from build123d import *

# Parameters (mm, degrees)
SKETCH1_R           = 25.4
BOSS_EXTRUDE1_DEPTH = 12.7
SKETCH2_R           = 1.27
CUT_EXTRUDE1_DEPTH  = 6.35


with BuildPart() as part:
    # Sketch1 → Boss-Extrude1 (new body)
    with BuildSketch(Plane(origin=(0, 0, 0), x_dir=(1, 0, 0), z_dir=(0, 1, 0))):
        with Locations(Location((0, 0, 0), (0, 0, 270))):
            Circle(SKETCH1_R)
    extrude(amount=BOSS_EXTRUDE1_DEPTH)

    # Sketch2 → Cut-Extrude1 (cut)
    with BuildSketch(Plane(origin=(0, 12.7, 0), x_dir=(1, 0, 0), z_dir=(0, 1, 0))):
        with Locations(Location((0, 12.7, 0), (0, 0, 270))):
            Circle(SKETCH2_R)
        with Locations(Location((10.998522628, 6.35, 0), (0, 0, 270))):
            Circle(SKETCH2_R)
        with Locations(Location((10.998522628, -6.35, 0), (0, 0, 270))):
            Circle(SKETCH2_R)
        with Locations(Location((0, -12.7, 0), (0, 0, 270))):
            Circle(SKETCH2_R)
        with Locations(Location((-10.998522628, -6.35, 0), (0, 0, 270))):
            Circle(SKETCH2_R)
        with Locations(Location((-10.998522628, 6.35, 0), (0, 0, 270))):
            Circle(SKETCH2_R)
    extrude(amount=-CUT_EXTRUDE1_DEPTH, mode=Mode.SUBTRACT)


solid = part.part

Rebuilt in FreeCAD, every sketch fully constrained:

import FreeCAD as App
import Part
import Sketcher
Q = App.Units.Quantity

doc = App.newDocument("Part")
params = doc.addObject("Spreadsheet::Sheet", "Params")
for row, (alias, value) in enumerate([
    ("sketch1_diameter", "2 in"),
    ("pad1_length", "0.5 in"),
    ("sketch2_diameter", "0.1 in"),
    ("pocket1_length", "0.25 in"),
], start=1):
    params.set(f"A{row}", alias)
    params.set(f"B{row}", "=" + value)
    params.setAlias(f"B{row}", alias)

body = doc.addObject("PartDesign::Body", "Body")

# Sketch on XZ plane
sketch1 = body.newObject("Sketcher::SketchObject", "Sketch")
sketch1.AttachmentSupport = (doc.getObject("XZ_Plane"), [""])
sketch1.MapMode = "FlatFace"
sketch1.addGeometry(Part.Circle(App.Vector(0, 0, 0), App.Vector(0, 0, 1), 25), False)
sketch1.addConstraint([
    Sketcher.Constraint("Coincident", 0, 3, -1, 1),
    Sketcher.Constraint("Diameter", 0, Q("2 in")),
])
sketch1.setExpression("Constraints[1]", "Params.sketch1_diameter")
pad1 = body.newObject("PartDesign::Pad", "Pad")
pad1.Profile = sketch1
pad1.setExpression("Length", "Params.pad1_length")
pad1.Reversed = True

# Sketch on XZ plane
sketch2 = body.newObject("Sketcher::SketchObject", "Sketch001")
sketch2.AttachmentSupport = (doc.getObject("XZ_Plane"), [""])
sketch2.MapMode = "FlatFace"
sketch2.AttachmentOffset = App.Placement(App.Vector(0, 0, -0.5 * 25.4), App.Rotation())
sketch2.addGeometry([
    Part.Circle(App.Vector(0, -12.7, 0), App.Vector(0, 0, 1), 1.3),  # 0
    Part.Circle(App.Vector(11, -6.3, 0), App.Vector(0, 0, 1), 1.3),  # 1
    Part.Circle(App.Vector(11, 6.3, 0), App.Vector(0, 0, 1), 1.3),  # 2
    Part.Circle(App.Vector(0, 12.7, 0), App.Vector(0, 0, 1), 1.3),  # 3
    Part.Circle(App.Vector(-11, 6.3, 0), App.Vector(0, 0, 1), 1.3),  # 4
    Part.Circle(App.Vector(-11, -6.3, 0), App.Vector(0, 0, 1), 1.3),  # 5
], False)
sketch2.addConstraint([
    Sketcher.Constraint("Equal", 0, 1),
    Sketcher.Constraint("Equal", 1, 2),
    Sketcher.Constraint("Equal", 2, 3),
    Sketcher.Constraint("Equal", 3, 4),
    Sketcher.Constraint("Equal", 4, 5),
    Sketcher.Constraint("Symmetric", 0, 3, 3, 3, -1, 1),
    Sketcher.Constraint("Symmetric", 1, 3, 4, 3, -1, 1),
    Sketcher.Constraint("Symmetric", 2, 3, 5, 3, -1, 1),
    Sketcher.Constraint("Symmetric", 2, 3, 4, 3, -2),
    Sketcher.Constraint("PointOnObject", 0, 3, -2),
    Sketcher.Constraint("Diameter", 0, Q("0.1 in")),
    Sketcher.Constraint("DistanceY", 0, 3, 3, 3, Q("1 in")),
    Sketcher.Constraint("DistanceY", 1, 3, 2, 3, Q("0.5 in")),
    Sketcher.Constraint("DistanceX", -1, 1, 1, 3, Q("10.998523 mm")),
])
sketch2.setExpression("Constraints[10]", "Params.sketch2_diameter")
pocket1 = body.newObject("PartDesign::Pocket", "Pocket")
pocket1.Profile = sketch2
pocket1.setExpression("Length", "Params.pocket1_length")
pocket1.Reversed = True

doc.recompute()
